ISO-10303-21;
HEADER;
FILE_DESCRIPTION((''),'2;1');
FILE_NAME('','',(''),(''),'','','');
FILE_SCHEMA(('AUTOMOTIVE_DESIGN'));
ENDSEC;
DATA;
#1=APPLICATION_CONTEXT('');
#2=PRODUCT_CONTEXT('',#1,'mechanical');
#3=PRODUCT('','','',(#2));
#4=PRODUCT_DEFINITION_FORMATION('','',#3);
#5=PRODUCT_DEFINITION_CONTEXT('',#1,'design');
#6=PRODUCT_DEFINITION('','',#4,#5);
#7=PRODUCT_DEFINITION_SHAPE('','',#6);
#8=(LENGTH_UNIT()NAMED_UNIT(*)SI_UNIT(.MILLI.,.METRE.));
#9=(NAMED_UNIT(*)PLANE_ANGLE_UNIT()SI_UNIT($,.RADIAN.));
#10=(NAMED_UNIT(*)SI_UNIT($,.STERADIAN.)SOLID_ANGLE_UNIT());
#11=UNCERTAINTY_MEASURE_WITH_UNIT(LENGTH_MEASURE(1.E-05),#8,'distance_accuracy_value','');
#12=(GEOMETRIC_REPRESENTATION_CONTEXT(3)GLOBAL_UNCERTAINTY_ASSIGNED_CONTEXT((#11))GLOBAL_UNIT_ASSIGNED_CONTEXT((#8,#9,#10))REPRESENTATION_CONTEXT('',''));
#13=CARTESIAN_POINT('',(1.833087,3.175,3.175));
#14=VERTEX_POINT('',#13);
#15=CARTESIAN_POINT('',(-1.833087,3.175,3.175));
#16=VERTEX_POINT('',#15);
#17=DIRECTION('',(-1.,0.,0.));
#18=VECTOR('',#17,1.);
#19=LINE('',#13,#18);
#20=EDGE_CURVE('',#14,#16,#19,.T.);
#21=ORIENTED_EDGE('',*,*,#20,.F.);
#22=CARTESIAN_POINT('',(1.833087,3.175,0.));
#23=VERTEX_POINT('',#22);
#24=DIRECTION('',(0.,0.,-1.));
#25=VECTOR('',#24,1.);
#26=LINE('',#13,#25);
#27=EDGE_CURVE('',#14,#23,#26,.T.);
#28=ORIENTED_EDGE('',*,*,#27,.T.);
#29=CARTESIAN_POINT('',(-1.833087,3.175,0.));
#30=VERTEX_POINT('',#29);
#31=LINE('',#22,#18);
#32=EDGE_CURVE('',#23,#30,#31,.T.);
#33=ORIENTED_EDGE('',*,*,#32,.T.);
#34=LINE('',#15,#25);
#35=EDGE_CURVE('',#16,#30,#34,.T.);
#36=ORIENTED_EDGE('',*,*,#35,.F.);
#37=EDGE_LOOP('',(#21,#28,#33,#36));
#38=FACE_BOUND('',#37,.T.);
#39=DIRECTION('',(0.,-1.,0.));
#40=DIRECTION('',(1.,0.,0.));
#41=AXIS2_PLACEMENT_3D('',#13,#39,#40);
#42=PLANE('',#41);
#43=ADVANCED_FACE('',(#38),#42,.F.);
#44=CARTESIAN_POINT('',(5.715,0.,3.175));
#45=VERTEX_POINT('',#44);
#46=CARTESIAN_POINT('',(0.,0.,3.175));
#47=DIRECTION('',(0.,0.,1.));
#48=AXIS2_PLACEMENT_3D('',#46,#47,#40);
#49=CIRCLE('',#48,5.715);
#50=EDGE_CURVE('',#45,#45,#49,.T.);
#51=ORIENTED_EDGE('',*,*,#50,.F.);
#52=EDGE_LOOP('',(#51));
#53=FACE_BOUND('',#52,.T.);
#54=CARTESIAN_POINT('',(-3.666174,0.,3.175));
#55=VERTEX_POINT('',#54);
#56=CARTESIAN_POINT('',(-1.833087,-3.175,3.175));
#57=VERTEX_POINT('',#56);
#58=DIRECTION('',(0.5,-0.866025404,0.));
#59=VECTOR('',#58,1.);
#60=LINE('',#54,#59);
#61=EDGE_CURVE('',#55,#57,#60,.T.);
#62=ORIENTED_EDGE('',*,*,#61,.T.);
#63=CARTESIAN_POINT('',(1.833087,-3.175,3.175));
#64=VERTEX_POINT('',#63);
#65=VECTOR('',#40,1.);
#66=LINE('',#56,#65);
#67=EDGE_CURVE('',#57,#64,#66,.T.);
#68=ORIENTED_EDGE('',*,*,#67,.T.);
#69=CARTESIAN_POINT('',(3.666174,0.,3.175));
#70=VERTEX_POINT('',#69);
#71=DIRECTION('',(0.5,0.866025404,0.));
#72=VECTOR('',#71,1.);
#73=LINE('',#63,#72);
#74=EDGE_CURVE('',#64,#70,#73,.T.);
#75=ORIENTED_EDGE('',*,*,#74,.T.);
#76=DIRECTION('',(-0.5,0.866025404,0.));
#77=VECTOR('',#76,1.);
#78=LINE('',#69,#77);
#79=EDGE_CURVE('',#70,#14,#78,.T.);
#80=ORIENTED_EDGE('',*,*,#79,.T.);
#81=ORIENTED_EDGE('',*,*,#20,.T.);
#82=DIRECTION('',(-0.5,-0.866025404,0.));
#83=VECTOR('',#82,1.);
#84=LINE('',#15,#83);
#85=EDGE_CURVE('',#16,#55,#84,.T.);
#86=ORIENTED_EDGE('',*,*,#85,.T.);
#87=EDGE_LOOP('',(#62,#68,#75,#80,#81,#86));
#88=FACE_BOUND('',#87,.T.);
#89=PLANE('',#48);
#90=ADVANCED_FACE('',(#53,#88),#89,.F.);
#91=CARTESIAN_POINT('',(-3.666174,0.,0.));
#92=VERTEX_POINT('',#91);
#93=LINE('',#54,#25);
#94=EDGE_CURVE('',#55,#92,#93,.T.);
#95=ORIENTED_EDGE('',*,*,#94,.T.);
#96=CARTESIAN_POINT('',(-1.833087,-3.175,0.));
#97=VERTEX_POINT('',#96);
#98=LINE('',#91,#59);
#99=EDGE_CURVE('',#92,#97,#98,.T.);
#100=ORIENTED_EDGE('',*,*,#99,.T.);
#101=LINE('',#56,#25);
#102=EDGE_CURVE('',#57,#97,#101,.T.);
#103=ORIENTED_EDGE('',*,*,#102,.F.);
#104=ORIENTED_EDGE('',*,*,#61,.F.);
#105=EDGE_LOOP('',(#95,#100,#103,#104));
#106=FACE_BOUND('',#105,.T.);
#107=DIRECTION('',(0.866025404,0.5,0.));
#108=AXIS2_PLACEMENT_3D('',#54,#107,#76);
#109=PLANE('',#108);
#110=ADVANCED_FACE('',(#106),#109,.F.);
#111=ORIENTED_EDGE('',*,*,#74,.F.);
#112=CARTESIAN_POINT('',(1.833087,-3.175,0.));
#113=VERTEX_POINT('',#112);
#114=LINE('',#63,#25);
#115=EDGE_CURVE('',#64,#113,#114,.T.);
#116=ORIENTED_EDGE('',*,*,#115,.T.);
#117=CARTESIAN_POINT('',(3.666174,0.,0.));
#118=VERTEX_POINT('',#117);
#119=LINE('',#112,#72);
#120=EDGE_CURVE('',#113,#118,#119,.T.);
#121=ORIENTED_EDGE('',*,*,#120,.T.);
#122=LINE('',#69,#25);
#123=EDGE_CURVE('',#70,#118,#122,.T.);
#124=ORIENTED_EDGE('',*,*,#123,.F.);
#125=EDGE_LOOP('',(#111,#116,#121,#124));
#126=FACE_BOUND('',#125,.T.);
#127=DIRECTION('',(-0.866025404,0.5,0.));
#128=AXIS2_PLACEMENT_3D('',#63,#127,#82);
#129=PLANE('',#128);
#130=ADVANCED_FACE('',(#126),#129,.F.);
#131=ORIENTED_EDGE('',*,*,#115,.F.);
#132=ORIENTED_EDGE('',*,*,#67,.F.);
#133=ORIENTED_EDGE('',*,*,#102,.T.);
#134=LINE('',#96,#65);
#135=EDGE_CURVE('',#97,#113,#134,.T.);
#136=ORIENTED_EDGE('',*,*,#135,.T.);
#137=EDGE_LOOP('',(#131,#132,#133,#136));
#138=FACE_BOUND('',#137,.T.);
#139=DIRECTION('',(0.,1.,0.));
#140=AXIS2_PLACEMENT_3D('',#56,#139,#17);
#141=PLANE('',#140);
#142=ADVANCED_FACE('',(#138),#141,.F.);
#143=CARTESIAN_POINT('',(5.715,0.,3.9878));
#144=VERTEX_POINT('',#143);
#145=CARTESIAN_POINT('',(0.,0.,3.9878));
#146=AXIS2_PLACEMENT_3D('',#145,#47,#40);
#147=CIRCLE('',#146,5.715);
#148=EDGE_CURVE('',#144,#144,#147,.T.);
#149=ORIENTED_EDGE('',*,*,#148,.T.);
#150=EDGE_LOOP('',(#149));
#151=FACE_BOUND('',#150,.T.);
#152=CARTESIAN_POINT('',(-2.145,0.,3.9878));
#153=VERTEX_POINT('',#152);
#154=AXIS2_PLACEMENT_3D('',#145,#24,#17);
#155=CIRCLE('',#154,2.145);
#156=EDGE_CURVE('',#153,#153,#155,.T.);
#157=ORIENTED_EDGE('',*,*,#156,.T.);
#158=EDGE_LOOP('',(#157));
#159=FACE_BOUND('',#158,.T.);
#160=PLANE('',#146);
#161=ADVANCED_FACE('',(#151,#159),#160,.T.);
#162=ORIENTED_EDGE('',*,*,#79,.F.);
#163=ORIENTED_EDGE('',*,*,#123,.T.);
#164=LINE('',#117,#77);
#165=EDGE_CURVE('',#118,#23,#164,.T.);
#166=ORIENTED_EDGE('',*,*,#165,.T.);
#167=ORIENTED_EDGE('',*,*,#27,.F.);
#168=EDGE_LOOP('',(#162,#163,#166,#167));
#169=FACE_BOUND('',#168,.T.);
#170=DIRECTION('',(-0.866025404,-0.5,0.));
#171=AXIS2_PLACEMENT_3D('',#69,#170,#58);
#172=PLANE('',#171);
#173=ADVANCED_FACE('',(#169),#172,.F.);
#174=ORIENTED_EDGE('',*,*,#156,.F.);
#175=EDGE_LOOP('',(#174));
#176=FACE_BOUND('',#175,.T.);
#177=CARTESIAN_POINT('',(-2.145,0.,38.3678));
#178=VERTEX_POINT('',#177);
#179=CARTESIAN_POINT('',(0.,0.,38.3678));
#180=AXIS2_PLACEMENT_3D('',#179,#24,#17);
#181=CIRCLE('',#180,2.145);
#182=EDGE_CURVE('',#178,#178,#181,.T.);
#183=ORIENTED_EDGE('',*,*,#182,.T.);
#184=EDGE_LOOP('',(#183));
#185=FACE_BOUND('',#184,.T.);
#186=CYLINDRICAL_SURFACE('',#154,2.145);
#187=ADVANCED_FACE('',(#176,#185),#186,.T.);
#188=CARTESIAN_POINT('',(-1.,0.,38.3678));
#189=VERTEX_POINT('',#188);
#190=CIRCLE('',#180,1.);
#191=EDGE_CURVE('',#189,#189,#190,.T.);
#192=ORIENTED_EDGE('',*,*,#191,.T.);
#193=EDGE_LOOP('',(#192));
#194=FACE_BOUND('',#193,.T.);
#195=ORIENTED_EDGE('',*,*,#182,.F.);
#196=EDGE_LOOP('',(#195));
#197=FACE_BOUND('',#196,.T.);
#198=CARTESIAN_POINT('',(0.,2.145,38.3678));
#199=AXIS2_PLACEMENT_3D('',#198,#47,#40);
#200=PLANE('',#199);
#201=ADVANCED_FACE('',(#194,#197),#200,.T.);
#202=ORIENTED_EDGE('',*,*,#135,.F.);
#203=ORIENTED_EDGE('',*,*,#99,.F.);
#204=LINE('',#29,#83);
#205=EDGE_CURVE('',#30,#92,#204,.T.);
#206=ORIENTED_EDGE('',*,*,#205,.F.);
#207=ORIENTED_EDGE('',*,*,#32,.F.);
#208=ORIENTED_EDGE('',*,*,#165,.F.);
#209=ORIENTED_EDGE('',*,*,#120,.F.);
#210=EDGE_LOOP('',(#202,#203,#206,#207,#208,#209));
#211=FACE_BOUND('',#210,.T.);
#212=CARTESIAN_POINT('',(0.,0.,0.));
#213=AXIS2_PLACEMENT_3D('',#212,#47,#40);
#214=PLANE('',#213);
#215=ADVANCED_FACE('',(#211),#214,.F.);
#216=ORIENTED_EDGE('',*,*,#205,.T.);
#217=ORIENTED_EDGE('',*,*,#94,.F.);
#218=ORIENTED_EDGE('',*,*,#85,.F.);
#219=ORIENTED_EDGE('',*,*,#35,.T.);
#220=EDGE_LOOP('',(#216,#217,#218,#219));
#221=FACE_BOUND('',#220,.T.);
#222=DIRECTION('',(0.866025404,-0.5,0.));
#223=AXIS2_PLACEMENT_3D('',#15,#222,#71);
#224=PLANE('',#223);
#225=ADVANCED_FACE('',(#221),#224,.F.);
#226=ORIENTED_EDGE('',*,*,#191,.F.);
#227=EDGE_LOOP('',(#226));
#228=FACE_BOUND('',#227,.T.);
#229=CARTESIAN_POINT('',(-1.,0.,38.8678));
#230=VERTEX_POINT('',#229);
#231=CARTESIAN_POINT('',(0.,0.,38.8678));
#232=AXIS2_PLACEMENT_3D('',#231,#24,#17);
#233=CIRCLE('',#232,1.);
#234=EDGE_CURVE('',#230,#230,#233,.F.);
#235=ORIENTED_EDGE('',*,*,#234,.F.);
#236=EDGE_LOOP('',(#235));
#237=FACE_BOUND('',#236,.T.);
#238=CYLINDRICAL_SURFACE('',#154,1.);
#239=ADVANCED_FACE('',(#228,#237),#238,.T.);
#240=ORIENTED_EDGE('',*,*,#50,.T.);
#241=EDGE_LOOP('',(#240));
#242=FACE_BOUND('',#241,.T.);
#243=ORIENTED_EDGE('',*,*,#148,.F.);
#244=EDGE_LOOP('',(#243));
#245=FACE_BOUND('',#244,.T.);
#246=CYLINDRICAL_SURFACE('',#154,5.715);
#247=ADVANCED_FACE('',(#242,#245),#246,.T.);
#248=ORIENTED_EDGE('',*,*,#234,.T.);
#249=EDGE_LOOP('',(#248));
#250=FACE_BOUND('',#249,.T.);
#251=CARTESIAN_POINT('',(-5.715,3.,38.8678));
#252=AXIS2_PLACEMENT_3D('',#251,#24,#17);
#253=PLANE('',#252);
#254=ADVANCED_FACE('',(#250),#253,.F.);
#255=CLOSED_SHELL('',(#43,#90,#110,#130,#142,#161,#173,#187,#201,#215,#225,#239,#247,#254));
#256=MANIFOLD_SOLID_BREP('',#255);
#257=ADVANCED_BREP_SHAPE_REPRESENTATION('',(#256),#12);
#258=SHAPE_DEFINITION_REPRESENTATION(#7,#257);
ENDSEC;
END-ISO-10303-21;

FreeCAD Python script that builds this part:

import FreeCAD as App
import Part
import Sketcher
from FreeCAD import Vector
Q = App.Units.Quantity

doc = App.newDocument("Part")
body = doc.addObject("PartDesign::Body", "Body")

sketch1 = doc.addObject("Sketcher::SketchObject", "Sketch")
body.addObject(sketch1)
sketch1.AttachmentSupport = (doc.XY_Plane, [""])
sketch1.MapMode = "FlatFace"
sketch1.addGeometry(Part.LineSegment(Vector(3.7, 0, 0), Vector(1.8, 3.2, 0)), False)
sketch1.addGeometry(Part.LineSegment(Vector(1.8, 3.2, 0), Vector(-1.8, 3.2, 0)), False)
sketch1.addGeometry(Part.LineSegment(Vector(-1.8, 3.2, 0), Vector(-3.7, 0, 0)), False)
sketch1.addGeometry(Part.LineSegment(Vector(-3.7, 0, 0), Vector(-1.8, -3.2, 0)), False)
sketch1.addGeometry(Part.LineSegment(Vector(-1.8, -3.2, 0), Vector(1.8, -3.2, 0)), False)
sketch1.addGeometry(Part.LineSegment(Vector(1.8, -3.2, 0), Vector(3.7, 0, 0)), False)
sketch1.addConstraint(Sketcher.Constraint("Coincident", 0, 2, 1, 1))
sketch1.addConstraint(Sketcher.Constraint("Coincident", 1, 2, 2, 1))
sketch1.addConstraint(Sketcher.Constraint("Coincident", 2, 2, 3, 1))
sketch1.addConstraint(Sketcher.Constraint("Coincident", 3, 2, 4, 1))
sketch1.addConstraint(Sketcher.Constraint("Coincident", 4, 2, 5, 1))
sketch1.addConstraint(Sketcher.Constraint("Coincident", 5, 2, 0, 1))
sketch1.addConstraint(Sketcher.Constraint("Horizontal", 1))
sketch1.addConstraint(Sketcher.Constraint("Horizontal", 4))
sketch1.addConstraint(Sketcher.Constraint("Symmetric", 0, 2, 3, 2, -1, 1))
sketch1.addConstraint(Sketcher.Constraint("Symmetric", 2, 2, 5, 2, -1, 1))
sketch1.addConstraint(Sketcher.Constraint("PointOnObject", 2, 2, -1))
sketch1.addConstraint(Sketcher.Constraint("Parallel", 2, 5))
sketch1.addConstraint(Sketcher.Constraint("Vertical", 1, 2, 3, 2))
sketch1.addConstraint(Sketcher.Constraint("Angle", 0, Q("120 deg")))
sketch1.addConstraint(Sketcher.Constraint("DistanceY", 3, 2, 1, 2, Q("0.25 in")))
sketch1.addConstraint(Sketcher.Constraint("DistanceX", 1, 2, 1, 1, Q("3.666174 mm")))
pad1 = doc.addObject("PartDesign::Pad", "Pad")
body.addObject(pad1)
pad1.Profile = sketch1
pad1.Length = Q("0.125 in")

sketch2 = doc.addObject("Sketcher::SketchObject", "Sketch001")
body.addObject(sketch2)
sketch2.AttachmentSupport = (doc.XY_Plane, [""])
sketch2.MapMode = "FlatFace"
sketch2.AttachmentOffset = App.Placement(Vector(0, 0, 0.125 * 25.4), App.Rotation())
sketch2.addGeometry(Part.Circle(Vector(0, 0, 0), Vector(0, 0, 1), 6), False)
sketch2.addConstraint(Sketcher.Constraint("Coincident", 0, 3, -1, 1))
sketch2.addConstraint(Sketcher.Constraint("Diameter", 0, Q("0.45 in")))
pad2 = doc.addObject("PartDesign::Pad", "Pad001")
body.addObject(pad2)
pad2.Profile = sketch2
pad2.Length = Q("0.032 in")

sketch3 = doc.addObject("Sketcher::SketchObject", "Sketch002")
body.addObject(sketch3)
sketch3.AttachmentSupport = (doc.YZ_Plane, [""])
sketch3.MapMode = "FlatFace"
sketch3.addGeometry(Part.LineSegment(Vector(0, 49.4, 0), Vector(0, 4, 0)), False)
sketch3.addGeometry(Part.LineSegment(Vector(0, 4, 0), Vector(2.1, 4, 0)), False)
sketch3.addGeometry(Part.LineSegment(Vector(2.1, 4, 0), Vector(2.1, 38.4, 0)), False)
sketch3.addGeometry(Part.LineSegment(Vector(2.1, 38.4, 0), Vector(1, 38.4, 0)), False)
sketch3.addGeometry(Part.LineSegment(Vector(1, 38.4, 0), Vector(1, 39.4, 0)), False)
sketch3.addGeometry(Part.LineSegment(Vector(1, 39.4, 0), Vector(2.1, 39.4, 0)), False)
sketch3.addGeometry(Part.LineSegment(Vector(2.1, 39.4, 0), Vector(2.1, 49.4, 0)), False)
sketch3.addGeometry(Part.LineSegment(Vector(2.1, 49.4, 0), Vector(0, 49.4, 0)), False)
sketch3.addConstraint(Sketcher.Constraint("Coincident", 0, 2, 1, 1))
sketch3.addConstraint(Sketcher.Constraint("Coincident", 1, 2, 2, 1))
sketch3.addConstraint(Sketcher.Constraint("Coincident", 2, 2, 3, 1))
sketch3.addConstraint(Sketcher.Constraint("Coincident", 3, 2, 4, 1))
sketch3.addConstraint(Sketcher.Constraint("Coincident", 4, 2, 5, 1))
sketch3.addConstraint(Sketcher.Constraint("Coincident", 5, 2, 6, 1))
sketch3.addConstraint(Sketcher.Constraint("Coincident", 6, 2, 7, 1))
sketch3.addConstraint(Sketcher.Constraint("Coincident", 7, 2, 0, 1))
sketch3.addConstraint(Sketcher.Constraint("Vertical", 0))
sketch3.addConstraint(Sketcher.Constraint("Horizontal", 1))
sketch3.addConstraint(Sketcher.Constraint("Vertical", 2))
sketch3.addConstraint(Sketcher.Constraint("Horizontal", 3))
sketch3.addConstraint(Sketcher.Constraint("Vertical", 4))
sketch3.addConstraint(Sketcher.Constraint("Horizontal", 5))
sketch3.addConstraint(Sketcher.Constraint("Vertical", 6))
sketch3.addConstraint(Sketcher.Constraint("Horizontal", 7))
sketch3.addConstraint(Sketcher.Constraint("PointOnObject", 0, 2, -2))
sketch3.addConstraint(Sketcher.Constraint("Vertical", 2, 2, 5, 2))
sketch3.addConstraint(Sketcher.Constraint("DistanceY", -1, 1, 0, 2, Q("0.157 in")))
sketch3.addConstraint(Sketcher.Constraint("DistanceX", 1, 1, 1, 2, Q("2.145 mm")))
sketch3.addConstraint(Sketcher.Constraint("DistanceX", 3, 2, 3, 1, Q("1.145 mm")))
sketch3.addConstraint(Sketcher.Constraint("DistanceY", 0, 2, 0, 1, Q("45.45 mm")))
sketch3.addConstraint(Sketcher.Constraint("DistanceY", 2, 1, 2, 2, Q("34.38 mm")))
sketch3.addConstraint(Sketcher.Constraint("DistanceY", 4, 1, 4, 2, Q("1 mm")))
revolution = doc.addObject("PartDesign::Revolution", "Revolution")
body.addObject(revolution)
revolution.Profile = sketch3
revolution.ReferenceAxis = (sketch3, ["V_Axis"])
revolution.Angle = 360

sketch4 = doc.addObject("Sketcher::SketchObject", "Sketch003")
body.addObject(sketch4)
sketch4.AttachmentSupport = (doc.YZ_Plane, [""])
sketch4.MapMode = "FlatFace"
sketch4.addGeometry(Part.LineSegment(Vector(3, 50, 0), Vector(-3, 50, 0)), False)
sketch4.addGeometry(Part.LineSegment(Vector(-3, 50, 0), Vector(-3, 39, 0)), False)
sketch4.addGeometry(Part.LineSegment(Vector(-3, 39, 0), Vector(3, 39, 0)), False)
sketch4.addGeometry(Part.LineSegment(Vector(3, 39, 0), Vector(3, 50, 0)), False)
sketch4.addConstraint(Sketcher.Constraint("Coincident", 0, 2, 1, 1))
sketch4.addConstraint(Sketcher.Constraint("Coincident", 1, 2, 2, 1))
sketch4.addConstraint(Sketcher.Constraint("Coincident", 2, 2, 3, 1))
sketch4.addConstraint(Sketcher.Constraint("Coincident", 3, 2, 0, 1))
sketch4.addConstraint(Sketcher.Constraint("Horizontal", 0))
sketch4.addConstraint(Sketcher.Constraint("Vertical", 1))
sketch4.addConstraint(Sketcher.Constraint("Horizontal", 2))
sketch4.addConstraint(Sketcher.Constraint("Vertical", 3))
sketch4.addConstraint(Sketcher.Constraint("DistanceX", 0, 2, 0, 1, Q("6 mm")))
sketch4.addConstraint(Sketcher.Constraint("DistanceY", 1, 2, 1, 1, Q("11.07 mm")))
sketch4.addConstraint(Sketcher.Constraint("DistanceX", 0, 2, -1, 1, Q("3 mm")))
sketch4.addConstraint(Sketcher.Constraint("DistanceY", -1, 1, 0, 2, Q("49.9378 mm")))
pocket1 = doc.addObject("PartDesign::Pocket", "Pocket")
body.addObject(pocket1)
pocket1.Profile = sketch4
pocket1.Type = "ThroughAll"
pocket1.Midplane = True

doc.recompute()
